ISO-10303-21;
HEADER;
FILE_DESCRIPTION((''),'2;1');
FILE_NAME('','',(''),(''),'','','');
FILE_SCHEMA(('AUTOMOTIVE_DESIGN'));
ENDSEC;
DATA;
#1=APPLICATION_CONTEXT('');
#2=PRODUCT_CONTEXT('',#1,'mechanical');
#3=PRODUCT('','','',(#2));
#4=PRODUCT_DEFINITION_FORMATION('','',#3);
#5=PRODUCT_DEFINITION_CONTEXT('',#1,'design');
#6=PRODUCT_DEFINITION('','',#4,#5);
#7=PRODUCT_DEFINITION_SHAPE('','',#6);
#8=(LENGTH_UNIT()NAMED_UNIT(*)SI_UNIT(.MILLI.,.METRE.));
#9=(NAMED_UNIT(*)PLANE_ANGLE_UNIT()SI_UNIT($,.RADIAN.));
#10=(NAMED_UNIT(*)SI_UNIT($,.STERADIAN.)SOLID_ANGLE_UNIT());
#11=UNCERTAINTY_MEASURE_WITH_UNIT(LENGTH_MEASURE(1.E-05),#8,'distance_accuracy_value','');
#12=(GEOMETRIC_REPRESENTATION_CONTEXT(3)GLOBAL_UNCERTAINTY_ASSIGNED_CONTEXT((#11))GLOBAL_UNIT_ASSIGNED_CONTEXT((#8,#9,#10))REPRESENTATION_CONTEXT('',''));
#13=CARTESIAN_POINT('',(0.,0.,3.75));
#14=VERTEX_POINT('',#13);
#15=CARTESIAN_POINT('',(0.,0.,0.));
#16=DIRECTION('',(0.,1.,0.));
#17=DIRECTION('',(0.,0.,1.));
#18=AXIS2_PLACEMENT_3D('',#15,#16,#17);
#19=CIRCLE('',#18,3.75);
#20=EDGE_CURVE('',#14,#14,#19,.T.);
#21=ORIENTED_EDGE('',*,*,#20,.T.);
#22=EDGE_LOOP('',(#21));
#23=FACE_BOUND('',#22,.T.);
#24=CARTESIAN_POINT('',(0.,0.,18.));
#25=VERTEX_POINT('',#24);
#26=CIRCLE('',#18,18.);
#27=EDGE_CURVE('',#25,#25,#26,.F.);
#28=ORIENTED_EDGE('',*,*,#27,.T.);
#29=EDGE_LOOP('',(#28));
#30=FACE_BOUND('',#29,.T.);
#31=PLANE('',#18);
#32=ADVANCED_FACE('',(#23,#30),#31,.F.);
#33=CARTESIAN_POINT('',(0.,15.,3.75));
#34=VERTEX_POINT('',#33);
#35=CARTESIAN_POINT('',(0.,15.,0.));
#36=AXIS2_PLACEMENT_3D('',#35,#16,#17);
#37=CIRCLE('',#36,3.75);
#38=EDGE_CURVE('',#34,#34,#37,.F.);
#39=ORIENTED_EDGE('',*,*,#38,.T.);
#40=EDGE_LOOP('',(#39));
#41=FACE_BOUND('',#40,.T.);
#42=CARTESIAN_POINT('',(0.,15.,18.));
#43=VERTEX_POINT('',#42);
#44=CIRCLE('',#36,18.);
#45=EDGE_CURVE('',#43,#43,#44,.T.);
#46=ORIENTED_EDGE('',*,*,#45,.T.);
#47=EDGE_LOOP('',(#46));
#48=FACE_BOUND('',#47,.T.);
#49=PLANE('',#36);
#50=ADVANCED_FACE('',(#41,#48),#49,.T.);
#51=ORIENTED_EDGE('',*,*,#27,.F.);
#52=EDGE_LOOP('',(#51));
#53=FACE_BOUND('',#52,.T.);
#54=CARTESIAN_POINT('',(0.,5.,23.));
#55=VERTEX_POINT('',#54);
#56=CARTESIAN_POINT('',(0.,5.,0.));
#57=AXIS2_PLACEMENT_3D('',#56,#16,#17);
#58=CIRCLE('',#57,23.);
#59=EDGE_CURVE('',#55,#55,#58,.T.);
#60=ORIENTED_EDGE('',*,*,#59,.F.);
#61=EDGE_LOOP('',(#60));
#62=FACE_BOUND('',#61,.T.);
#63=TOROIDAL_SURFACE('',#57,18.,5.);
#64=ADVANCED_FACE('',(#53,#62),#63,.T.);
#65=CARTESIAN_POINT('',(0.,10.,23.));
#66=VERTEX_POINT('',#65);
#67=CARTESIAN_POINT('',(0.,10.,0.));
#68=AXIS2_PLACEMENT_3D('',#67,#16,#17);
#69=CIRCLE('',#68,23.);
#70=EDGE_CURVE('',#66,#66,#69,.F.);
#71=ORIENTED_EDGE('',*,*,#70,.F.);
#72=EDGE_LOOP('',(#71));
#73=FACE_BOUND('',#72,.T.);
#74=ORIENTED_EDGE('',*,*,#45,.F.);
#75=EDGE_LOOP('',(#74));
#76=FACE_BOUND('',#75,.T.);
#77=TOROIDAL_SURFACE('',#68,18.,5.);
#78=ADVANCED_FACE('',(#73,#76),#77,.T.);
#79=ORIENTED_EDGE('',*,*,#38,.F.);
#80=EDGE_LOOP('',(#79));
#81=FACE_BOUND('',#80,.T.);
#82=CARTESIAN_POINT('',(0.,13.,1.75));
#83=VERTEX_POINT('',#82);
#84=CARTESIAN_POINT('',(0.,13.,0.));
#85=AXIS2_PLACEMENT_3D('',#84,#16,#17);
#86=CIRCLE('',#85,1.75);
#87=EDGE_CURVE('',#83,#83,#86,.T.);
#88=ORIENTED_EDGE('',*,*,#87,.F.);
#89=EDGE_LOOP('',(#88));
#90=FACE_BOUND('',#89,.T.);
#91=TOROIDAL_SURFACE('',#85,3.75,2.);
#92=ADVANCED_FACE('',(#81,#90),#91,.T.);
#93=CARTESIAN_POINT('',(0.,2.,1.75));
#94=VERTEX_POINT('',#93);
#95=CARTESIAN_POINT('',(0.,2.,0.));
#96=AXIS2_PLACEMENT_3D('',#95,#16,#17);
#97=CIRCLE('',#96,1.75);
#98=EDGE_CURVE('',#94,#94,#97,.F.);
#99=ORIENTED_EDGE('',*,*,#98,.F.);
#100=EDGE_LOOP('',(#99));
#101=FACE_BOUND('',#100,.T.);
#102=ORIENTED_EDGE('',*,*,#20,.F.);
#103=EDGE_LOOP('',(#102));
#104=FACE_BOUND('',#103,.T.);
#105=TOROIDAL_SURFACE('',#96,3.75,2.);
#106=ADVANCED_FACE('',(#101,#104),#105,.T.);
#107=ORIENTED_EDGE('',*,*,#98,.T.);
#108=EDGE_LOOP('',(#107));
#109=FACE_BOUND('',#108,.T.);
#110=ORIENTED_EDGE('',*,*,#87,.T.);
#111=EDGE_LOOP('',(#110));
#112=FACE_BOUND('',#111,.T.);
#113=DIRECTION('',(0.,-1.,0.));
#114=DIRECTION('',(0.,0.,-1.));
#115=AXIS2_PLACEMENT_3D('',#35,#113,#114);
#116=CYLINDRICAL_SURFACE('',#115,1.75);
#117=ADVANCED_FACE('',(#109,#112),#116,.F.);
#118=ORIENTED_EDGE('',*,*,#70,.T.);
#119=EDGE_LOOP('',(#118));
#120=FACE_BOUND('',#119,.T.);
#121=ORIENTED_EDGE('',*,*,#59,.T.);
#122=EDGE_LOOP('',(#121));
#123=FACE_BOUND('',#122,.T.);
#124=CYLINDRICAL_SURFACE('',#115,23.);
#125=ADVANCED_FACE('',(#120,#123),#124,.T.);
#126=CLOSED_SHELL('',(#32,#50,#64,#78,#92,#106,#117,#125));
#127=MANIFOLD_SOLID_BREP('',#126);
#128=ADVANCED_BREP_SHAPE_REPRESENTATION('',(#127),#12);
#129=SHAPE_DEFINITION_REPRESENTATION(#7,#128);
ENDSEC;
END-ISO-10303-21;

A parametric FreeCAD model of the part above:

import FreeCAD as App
import Part
import Sketcher
Q = App.Units.Quantity


def edges_at(feature, points):
    """Names of the edges that pass closest to the given points."""
    edges = feature.Shape.Edges
    near = lambda p: min(range(len(edges)), key=lambda i: edges[i].distToShape(Part.Vertex(*p))[0])
    return sorted({f"Edge{near(p) + 1}" for p in points})

doc = App.newDocument("Part")
body = doc.addObject("PartDesign::Body", "Body")

sketch1 = body.newObject("Sketcher::SketchObject", "Sketch")
sketch1.AttachmentSupport = (doc.getObject("XZ_Plane"), [""])
sketch1.MapMode = "FlatFace"
sketch1.addGeometry(Part.Circle(App.Vector(0, 0, 0), App.Vector(0, 0, 1), 23), False)
sketch1.addGeometry(Part.Circle(App.Vector(0, 0, 0), App.Vector(0, 0, 1), 1.8), False)
sketch1.addConstraint(Sketcher.Constraint("Coincident", 0, 3, -1, 1))
sketch1.addConstraint(Sketcher.Constraint("Coincident", 1, 3, -1, 1))
sketch1.addConstraint(Sketcher.Constraint("Diameter", 0, Q("46 mm")))
sketch1.addConstraint(Sketcher.Constraint("Diameter", 1, Q("3.5 mm")))
pad1 = body.newObject("PartDesign::Pad", "Pad")
pad1.Profile = sketch1
pad1.Length = 15
pad1.Reversed = True
doc.recompute()

fillet = body.newObject("PartDesign::Fillet", "Fillet")
fillet.Base = (pad1, edges_at(pad1, [(0, 0, -1.75), (0, 15, -1.75)]))
fillet.Radius = 2
doc.recompute()

fillet2 = body.newObject("PartDesign::Fillet", "Fillet001")
fillet2.Base = (fillet, edges_at(fillet, [(0, 0, -23), (0, 15, -23)]))
fillet2.Radius = 5

doc.recompute()
